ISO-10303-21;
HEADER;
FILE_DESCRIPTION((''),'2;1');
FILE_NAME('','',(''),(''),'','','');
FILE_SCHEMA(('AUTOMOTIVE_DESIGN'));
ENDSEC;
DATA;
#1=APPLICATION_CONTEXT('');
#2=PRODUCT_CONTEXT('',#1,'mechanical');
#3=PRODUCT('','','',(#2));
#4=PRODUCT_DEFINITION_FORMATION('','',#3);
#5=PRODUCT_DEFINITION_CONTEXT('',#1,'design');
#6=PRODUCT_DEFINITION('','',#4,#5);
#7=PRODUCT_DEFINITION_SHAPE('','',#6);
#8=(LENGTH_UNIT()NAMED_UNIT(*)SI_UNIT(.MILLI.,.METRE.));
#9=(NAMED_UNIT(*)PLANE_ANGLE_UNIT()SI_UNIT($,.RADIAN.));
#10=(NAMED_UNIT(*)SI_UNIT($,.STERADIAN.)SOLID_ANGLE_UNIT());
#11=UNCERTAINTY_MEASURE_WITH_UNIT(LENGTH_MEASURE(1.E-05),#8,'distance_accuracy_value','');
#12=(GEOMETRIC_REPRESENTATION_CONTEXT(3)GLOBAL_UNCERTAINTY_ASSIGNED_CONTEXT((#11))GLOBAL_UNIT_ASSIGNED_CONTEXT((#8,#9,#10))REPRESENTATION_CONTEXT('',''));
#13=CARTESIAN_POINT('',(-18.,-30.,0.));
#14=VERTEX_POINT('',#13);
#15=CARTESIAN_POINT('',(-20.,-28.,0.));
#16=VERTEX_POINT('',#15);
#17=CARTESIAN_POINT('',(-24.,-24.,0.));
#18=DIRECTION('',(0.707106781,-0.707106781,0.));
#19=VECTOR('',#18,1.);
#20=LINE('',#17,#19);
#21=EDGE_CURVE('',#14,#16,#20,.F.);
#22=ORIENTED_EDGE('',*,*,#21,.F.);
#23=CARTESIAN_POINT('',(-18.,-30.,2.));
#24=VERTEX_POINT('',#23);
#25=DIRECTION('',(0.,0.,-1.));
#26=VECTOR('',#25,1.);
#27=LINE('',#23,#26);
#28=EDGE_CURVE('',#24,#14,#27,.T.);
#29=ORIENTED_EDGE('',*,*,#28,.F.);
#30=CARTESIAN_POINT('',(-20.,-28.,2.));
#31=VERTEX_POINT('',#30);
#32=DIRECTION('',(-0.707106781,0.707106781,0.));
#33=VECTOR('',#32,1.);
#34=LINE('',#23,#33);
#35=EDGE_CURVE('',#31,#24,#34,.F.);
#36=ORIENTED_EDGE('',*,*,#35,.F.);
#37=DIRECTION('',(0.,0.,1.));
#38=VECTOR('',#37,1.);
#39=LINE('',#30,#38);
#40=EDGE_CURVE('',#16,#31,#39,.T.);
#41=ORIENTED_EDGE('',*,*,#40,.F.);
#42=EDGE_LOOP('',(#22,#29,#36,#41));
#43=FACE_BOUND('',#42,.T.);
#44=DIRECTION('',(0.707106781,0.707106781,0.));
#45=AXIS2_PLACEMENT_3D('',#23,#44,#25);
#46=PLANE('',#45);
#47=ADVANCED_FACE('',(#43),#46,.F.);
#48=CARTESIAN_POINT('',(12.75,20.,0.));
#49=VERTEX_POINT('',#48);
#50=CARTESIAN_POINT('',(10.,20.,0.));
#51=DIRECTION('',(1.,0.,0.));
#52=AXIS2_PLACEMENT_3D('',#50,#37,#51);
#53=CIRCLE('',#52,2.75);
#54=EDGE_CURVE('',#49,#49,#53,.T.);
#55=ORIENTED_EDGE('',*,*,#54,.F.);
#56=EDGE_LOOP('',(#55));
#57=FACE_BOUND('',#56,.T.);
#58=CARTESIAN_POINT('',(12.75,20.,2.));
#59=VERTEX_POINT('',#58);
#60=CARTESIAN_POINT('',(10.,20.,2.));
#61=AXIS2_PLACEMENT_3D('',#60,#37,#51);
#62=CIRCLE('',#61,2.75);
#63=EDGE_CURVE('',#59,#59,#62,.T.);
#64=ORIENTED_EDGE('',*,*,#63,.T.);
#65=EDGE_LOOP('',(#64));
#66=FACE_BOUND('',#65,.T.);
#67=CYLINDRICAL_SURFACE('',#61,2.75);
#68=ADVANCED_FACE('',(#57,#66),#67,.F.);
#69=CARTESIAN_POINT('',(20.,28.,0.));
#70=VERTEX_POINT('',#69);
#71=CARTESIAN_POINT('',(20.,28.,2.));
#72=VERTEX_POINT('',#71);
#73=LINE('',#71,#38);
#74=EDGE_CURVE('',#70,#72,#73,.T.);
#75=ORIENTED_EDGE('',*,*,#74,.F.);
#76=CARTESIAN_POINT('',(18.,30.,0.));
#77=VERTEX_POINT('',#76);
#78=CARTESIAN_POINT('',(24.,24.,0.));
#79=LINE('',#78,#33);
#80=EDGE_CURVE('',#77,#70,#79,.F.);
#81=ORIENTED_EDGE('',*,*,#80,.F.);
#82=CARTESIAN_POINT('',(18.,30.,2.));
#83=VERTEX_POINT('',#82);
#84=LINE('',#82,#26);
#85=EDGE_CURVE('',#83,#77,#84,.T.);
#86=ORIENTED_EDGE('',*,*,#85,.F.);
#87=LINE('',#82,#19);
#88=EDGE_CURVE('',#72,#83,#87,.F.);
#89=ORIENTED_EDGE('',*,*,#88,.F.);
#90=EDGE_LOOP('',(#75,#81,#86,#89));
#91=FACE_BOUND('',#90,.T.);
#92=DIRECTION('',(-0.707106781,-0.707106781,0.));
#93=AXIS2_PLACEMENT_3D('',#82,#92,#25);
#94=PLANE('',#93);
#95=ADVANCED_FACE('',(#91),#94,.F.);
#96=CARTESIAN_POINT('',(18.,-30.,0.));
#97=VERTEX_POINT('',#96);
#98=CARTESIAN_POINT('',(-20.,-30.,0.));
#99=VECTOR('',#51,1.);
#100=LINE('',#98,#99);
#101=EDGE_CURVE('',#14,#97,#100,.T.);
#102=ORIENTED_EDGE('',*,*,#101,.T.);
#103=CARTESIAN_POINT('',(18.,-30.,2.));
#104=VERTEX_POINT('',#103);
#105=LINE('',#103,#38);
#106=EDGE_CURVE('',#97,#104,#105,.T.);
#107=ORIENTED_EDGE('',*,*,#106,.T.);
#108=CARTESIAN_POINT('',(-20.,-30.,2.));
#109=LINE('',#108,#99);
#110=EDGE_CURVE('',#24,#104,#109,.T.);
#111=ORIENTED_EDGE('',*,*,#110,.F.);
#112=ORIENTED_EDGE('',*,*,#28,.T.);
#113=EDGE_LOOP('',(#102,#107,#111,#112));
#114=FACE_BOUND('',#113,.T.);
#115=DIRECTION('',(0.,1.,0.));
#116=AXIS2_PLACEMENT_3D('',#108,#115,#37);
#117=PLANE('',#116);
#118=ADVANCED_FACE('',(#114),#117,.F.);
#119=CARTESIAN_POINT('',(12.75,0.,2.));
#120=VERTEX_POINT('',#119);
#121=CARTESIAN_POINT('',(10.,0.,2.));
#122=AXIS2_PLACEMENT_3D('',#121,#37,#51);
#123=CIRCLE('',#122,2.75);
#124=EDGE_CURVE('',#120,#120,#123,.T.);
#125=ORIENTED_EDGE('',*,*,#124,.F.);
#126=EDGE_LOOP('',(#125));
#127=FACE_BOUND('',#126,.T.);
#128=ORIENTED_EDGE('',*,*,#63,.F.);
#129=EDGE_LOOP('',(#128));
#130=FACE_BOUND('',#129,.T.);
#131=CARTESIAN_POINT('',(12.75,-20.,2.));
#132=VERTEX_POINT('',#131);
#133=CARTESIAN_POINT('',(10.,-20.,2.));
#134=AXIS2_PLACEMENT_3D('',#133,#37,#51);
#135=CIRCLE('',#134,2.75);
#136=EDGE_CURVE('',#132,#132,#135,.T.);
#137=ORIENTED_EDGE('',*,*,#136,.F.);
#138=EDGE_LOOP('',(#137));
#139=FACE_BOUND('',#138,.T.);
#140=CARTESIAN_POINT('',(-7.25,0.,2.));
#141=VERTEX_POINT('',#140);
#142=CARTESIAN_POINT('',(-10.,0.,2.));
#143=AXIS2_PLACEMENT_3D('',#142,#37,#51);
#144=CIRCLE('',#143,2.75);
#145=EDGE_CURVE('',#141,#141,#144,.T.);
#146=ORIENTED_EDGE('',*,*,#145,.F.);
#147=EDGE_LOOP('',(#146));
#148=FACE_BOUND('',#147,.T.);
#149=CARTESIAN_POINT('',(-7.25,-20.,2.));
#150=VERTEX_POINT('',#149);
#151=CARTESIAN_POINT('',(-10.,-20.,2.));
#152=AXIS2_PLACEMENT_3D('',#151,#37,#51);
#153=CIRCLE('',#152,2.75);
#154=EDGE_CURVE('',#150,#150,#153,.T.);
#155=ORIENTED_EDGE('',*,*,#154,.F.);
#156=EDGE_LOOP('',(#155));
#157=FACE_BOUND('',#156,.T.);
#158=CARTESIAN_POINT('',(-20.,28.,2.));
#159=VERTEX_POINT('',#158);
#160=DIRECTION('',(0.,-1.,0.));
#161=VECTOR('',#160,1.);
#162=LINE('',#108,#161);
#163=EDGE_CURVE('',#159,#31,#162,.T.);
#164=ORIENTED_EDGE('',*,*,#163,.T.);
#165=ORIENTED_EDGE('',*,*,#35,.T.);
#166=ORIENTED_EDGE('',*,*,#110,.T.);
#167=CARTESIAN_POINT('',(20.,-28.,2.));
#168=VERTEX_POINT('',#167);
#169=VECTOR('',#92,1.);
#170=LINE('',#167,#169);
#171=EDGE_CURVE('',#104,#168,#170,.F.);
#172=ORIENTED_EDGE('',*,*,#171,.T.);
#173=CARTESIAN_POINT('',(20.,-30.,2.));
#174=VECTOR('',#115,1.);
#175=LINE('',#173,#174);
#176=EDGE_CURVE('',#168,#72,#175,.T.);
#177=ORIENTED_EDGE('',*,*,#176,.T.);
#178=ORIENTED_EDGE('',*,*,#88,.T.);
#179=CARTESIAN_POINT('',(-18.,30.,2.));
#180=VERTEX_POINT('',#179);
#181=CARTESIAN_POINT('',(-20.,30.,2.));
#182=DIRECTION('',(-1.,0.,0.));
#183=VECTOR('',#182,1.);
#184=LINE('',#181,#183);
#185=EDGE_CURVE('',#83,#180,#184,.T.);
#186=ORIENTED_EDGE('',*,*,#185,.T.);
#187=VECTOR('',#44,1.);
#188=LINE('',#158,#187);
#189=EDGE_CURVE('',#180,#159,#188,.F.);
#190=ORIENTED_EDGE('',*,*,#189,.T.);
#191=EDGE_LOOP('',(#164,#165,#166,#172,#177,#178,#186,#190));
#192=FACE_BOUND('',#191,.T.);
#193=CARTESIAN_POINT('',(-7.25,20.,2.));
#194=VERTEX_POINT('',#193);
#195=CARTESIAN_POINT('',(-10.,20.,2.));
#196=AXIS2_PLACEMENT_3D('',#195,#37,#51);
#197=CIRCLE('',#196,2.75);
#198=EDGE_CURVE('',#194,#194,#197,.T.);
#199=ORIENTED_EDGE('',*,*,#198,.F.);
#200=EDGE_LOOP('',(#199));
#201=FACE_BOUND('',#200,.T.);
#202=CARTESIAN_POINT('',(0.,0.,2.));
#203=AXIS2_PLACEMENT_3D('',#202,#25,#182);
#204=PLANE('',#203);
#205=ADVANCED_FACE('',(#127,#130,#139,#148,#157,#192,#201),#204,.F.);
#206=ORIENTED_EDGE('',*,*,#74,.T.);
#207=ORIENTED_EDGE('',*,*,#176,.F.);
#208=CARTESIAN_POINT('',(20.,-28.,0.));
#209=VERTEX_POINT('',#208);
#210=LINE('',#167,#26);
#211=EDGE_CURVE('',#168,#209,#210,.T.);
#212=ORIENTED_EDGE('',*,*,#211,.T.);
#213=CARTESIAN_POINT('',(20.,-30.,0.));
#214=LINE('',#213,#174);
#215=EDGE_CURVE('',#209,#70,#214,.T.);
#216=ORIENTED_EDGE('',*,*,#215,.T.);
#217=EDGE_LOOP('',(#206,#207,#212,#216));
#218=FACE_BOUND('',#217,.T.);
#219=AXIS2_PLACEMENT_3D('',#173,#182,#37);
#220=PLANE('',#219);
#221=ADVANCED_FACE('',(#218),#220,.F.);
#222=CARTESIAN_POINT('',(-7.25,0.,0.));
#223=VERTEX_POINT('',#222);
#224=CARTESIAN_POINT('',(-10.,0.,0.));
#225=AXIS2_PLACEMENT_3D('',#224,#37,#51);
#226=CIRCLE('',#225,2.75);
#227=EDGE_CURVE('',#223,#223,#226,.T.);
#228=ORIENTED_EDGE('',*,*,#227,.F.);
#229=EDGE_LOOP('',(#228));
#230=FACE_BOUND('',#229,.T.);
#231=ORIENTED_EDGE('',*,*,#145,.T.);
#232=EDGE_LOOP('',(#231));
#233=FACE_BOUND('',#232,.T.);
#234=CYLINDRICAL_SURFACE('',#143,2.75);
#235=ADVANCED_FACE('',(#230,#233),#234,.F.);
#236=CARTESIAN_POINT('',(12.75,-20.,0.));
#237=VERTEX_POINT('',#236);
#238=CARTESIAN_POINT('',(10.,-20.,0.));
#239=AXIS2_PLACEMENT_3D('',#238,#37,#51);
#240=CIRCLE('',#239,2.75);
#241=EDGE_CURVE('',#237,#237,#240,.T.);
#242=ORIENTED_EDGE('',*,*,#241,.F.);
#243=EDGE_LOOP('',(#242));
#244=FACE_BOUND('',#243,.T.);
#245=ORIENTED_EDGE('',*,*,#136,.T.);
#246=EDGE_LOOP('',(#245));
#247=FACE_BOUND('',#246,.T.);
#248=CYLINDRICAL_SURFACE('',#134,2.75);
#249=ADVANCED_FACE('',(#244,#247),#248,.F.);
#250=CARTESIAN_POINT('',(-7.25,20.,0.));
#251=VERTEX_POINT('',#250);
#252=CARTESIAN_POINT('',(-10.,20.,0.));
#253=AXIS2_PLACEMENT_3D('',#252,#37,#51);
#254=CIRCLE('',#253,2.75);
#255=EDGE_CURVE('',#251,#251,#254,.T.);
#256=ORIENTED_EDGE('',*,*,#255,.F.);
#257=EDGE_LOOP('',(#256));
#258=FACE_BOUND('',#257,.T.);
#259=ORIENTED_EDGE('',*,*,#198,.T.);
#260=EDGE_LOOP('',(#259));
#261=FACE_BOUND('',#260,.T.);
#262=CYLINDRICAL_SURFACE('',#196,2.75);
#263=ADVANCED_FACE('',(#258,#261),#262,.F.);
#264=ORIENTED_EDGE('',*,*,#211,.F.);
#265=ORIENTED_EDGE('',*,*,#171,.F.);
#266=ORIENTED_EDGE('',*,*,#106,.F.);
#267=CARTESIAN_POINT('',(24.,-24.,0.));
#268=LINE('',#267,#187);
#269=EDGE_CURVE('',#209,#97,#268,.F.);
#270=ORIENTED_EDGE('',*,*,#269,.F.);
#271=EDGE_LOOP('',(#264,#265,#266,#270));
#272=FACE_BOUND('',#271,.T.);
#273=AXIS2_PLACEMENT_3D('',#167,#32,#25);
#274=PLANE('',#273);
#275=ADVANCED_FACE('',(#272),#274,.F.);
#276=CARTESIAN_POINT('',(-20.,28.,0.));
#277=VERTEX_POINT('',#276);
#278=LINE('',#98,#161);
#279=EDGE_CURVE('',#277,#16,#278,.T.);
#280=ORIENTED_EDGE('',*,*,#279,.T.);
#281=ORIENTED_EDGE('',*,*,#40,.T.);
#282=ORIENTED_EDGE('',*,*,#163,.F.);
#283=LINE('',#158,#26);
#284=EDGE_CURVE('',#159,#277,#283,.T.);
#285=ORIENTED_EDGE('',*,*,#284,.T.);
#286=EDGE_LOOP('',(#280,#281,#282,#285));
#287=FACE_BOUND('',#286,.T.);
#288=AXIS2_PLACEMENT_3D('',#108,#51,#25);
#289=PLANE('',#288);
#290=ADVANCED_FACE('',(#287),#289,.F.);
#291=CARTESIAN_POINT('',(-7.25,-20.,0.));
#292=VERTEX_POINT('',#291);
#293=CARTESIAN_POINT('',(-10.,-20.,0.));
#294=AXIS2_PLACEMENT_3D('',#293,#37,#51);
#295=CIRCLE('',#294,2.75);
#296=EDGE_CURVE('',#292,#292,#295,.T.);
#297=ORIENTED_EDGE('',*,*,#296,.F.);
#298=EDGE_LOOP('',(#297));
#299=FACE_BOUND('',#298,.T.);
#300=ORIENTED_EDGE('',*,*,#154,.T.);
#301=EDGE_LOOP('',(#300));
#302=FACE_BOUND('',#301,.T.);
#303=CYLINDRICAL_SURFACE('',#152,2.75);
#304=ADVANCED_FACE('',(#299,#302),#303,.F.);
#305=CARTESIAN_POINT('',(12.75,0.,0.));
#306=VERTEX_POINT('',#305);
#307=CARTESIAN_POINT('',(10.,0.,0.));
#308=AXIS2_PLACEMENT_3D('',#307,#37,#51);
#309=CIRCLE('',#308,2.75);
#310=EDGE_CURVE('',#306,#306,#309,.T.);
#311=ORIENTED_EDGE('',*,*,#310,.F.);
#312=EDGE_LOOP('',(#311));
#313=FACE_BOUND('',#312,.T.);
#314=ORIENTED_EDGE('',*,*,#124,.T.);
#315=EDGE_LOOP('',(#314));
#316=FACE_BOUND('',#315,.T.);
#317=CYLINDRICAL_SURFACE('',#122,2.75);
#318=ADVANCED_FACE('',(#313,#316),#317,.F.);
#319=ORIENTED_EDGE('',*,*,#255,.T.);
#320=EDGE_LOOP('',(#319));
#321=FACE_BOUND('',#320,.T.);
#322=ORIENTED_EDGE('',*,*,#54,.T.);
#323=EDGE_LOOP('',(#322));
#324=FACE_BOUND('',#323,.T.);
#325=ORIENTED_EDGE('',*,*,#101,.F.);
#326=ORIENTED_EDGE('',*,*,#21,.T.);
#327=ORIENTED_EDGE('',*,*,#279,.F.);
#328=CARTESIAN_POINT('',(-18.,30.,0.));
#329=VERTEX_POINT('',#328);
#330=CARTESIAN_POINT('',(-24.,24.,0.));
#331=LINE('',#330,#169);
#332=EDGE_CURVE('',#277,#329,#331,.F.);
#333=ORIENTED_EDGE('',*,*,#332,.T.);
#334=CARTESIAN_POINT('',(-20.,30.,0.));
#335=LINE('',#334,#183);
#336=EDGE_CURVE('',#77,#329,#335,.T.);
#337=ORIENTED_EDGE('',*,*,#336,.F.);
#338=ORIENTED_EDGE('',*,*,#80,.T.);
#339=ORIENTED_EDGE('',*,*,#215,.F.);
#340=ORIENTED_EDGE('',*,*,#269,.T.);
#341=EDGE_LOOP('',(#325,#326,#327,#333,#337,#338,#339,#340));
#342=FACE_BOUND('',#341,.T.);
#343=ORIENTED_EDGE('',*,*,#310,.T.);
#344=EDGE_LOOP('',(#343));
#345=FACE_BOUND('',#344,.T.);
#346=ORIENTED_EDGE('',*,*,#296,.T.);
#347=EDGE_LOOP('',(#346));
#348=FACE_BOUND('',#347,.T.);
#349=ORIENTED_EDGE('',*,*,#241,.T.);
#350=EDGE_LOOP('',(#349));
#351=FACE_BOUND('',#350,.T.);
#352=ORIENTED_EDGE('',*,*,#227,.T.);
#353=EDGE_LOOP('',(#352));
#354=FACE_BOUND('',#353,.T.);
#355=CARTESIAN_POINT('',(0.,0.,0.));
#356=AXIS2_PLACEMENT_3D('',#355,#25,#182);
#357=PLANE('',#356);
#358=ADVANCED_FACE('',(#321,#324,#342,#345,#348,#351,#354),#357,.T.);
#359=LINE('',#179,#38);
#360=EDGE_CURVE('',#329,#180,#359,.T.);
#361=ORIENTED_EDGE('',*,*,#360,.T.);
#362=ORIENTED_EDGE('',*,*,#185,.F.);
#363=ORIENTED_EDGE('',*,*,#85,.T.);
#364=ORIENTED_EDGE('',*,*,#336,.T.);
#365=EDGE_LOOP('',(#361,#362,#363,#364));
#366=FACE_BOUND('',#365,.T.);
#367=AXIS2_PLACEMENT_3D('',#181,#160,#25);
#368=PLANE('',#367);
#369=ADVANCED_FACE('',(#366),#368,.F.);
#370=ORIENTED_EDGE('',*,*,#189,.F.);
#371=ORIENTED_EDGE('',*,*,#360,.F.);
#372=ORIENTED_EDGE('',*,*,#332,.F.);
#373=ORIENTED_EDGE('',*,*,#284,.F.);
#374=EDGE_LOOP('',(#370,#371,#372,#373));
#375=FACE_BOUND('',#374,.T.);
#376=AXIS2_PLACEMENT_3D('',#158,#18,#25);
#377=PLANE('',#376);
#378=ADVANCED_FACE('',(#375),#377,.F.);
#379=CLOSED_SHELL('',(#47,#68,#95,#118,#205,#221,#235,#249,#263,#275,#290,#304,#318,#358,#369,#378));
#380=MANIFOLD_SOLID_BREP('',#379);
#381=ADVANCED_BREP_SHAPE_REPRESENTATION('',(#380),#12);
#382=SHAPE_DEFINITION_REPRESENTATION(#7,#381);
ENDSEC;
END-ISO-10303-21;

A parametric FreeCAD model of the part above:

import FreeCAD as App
import Part
import Sketcher
from FreeCAD import Vector
Q = App.Units.Quantity


def edges_at(feature, points):
    """Names of the edges that pass closest to the given points."""
    edges = feature.Shape.Edges
    near = lambda p: min(range(len(edges)), key=lambda i: edges[i].distToShape(Part.Vertex(*p))[0])
    return sorted({f"Edge{near(p) + 1}" for p in points})

doc = App.newDocument("Part")
body = doc.addObject("PartDesign::Body", "Body")

sketch1 = body.newObject("Sketcher::SketchObject", "Sketch")
sketch1.AttachmentSupport = (doc.getObject("XY_Plane"), [""])
sketch1.MapMode = "FlatFace"
sketch1.addGeometry([
    Part.LineSegment(Vector(-20, 30, 0), Vector(-20, -30, 0)),
    Part.LineSegment(Vector(-20, -30, 0), Vector(20, -30, 0)),
    Part.LineSegment(Vector(20, -30, 0), Vector(20, 30, 0)),
    Part.LineSegment(Vector(20, 30, 0), Vector(-20, 30, 0)),
], False)
sketch1.addConstraint([
    Sketcher.Constraint("Coincident", 0, 2, 1, 1),
    Sketcher.Constraint("Coincident", 1, 2, 2, 1),
    Sketcher.Constraint("Coincident", 2, 2, 3, 1),
    Sketcher.Constraint("Coincident", 3, 2, 0, 1),
    Sketcher.Constraint("Vertical", 0),
    Sketcher.Constraint("Horizontal", 1),
    Sketcher.Constraint("Vertical", 2),
    Sketcher.Constraint("Horizontal", 3),
    Sketcher.Constraint("Symmetric", 0, 2, 2, 2, -1, 1),
    Sketcher.Constraint("DistanceX", 1, 1, 1, 2, Q("40 mm")),
    Sketcher.Constraint("DistanceY", 0, 2, 0, 1, Q("60 mm")),
])
pad1 = body.newObject("PartDesign::Pad", "Pad")
pad1.Profile = sketch1
pad1.Length = 2
doc.recompute()

chamfer = body.newObject("PartDesign::Chamfer", "Chamfer")
chamfer.Base = (pad1, edges_at(pad1, [
    (20, -30, 1),
    (-20, -30, 1),
    (-20, 30, 1),
    (20, 30, 1),
]))
chamfer.Size = 2

sketch2 = body.newObject("Sketcher::SketchObject", "Sketch001")
sketch2.AttachmentSupport = (doc.getObject("XY_Plane"), [""])
sketch2.MapMode = "FlatFace"
sketch2.AttachmentOffset = App.Placement(Vector(0, 0, 2), App.Rotation())
sketch2.addGeometry([
    Part.Circle(Vector(-10, 20, 0), Vector(0, 0, 1), 2.75),
    Part.Circle(Vector(10, 20, 0), Vector(0, 0, 1), 2.75),
    Part.Circle(Vector(10, 0, 0), Vector(0, 0, 1), 2.75),
    Part.Circle(Vector(-10, 0, 0), Vector(0, 0, 1), 2.75),
    Part.Circle(Vector(-10, -20, 0), Vector(0, 0, 1), 2.75),
    Part.Circle(Vector(10, -20, 0), Vector(0, 0, 1), 2.75),
], False)
sketch2.addConstraint([
    Sketcher.Constraint("Equal", 0, 1),
    Sketcher.Constraint("Equal", 1, 2),
    Sketcher.Constraint("Equal", 2, 3),
    Sketcher.Constraint("Equal", 3, 4),
    Sketcher.Constraint("Equal", 4, 5),
    Sketcher.Constraint("Symmetric", 2, 3, 3, 3, -1, 1),
    Sketcher.Constraint("Symmetric", 1, 3, 4, 3, -1, 1),
    Sketcher.Constraint("Symmetric", 0, 3, 5, 3, -1, 1),
    Sketcher.Constraint("Symmetric", 0, 3, 1, 3, -2),
    Sketcher.Constraint("PointOnObject", 2, 3, -1),
    Sketcher.Constraint("Vertical", 1, 3, 2, 3),
    Sketcher.Constraint("Diameter", 0, Q("5.5 mm")),
    Sketcher.Constraint("DistanceX", 0, 3, -1, 1, Q("10 mm")),
    Sketcher.Constraint("DistanceY", -1, 1, 0, 3, Q("20 mm")),
])
doc.recompute()
hole = body.newObject("PartDesign::Hole", "Hole")
hole.Profile = sketch2
hole.ThreadType = "None"
hole.Diameter = 5.5
hole.DepthType = "ThroughAll"

doc.recompute()
